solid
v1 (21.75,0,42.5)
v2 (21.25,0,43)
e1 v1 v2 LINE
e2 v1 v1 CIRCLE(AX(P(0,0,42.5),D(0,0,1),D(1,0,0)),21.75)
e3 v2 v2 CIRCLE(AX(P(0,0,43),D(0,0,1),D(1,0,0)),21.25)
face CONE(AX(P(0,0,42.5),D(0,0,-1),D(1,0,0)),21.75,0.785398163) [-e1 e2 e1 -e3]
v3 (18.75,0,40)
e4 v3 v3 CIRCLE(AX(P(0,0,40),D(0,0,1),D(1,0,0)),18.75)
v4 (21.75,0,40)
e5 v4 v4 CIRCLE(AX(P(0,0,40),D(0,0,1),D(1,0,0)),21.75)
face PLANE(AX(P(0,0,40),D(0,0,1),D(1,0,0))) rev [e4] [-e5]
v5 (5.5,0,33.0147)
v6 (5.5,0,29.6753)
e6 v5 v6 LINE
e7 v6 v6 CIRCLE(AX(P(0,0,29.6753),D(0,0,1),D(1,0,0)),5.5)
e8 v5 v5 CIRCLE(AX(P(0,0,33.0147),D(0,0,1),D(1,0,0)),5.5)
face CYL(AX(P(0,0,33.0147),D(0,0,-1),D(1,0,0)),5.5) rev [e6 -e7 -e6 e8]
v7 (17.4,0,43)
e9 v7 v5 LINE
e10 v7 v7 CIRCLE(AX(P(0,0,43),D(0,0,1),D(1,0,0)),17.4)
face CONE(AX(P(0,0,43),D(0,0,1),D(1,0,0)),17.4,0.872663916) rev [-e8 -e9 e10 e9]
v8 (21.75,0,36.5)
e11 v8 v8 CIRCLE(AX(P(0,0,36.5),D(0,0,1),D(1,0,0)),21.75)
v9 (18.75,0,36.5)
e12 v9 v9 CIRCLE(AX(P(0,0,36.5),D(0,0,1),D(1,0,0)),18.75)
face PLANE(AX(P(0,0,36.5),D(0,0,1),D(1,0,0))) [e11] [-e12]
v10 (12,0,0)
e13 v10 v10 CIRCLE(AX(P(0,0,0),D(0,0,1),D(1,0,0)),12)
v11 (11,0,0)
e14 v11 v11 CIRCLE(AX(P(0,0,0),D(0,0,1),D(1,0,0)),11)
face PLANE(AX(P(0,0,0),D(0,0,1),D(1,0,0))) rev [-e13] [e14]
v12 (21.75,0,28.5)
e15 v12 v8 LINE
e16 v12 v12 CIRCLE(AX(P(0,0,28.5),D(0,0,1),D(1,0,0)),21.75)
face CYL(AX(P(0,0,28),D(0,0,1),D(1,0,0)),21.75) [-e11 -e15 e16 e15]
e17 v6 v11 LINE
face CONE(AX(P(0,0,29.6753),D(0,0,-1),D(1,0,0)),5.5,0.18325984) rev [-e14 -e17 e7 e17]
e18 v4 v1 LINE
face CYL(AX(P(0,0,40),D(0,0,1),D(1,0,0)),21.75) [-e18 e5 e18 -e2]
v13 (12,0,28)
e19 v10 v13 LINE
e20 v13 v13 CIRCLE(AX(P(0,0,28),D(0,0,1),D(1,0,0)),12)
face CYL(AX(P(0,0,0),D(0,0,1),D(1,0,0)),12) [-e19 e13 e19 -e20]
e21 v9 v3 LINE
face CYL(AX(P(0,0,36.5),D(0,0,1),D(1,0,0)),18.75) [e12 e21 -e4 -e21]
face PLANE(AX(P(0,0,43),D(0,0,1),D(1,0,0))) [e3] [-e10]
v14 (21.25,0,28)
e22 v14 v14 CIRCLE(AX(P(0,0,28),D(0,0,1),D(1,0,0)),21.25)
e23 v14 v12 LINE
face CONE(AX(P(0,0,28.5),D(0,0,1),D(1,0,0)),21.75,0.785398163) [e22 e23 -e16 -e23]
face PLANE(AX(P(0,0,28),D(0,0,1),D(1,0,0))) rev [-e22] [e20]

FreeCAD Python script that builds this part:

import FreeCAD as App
import Part
import Sketcher

V = App.Vector
Q = App.Units.Quantity


def edges_at(feature, points):
    """Names of the edges that pass closest to the given points."""
    edges = feature.Shape.Edges
    near = lambda p: min(range(len(edges)), key=lambda i: edges[i].distToShape(Part.Vertex(*p))[0])
    return sorted({f"Edge{near(p) + 1}" for p in points})

doc = App.newDocument("Part")
body = doc.addObject("PartDesign::Body", "Body")

# Sketch on XZ plane
sketch1 = body.newObject("Sketcher::SketchObject", "Sketch")
sketch1.AttachmentSupport = (doc.getObject("XZ_Plane"), [""])
sketch1.MapMode = "FlatFace"
sketch1.addGeometry([
    Part.LineSegment(V(12, 0, 0), V(11, 0, 0)),  # 0
    Part.LineSegment(V(11, 0, 0), V(5.5, 29.7, 0)),  # 1
    Part.LineSegment(V(5.5, 29.7, 0), V(5.5, 33, 0)),  # 2
    Part.LineSegment(V(5.5, 33, 0), V(17.4, 43, 0)),  # 3
    Part.LineSegment(V(17.4, 43, 0), V(21.8, 43, 0)),  # 4
    Part.LineSegment(V(21.8, 43, 0), V(21.8, 40, 0)),  # 5
    Part.LineSegment(V(21.8, 40, 0), V(18.8, 40, 0)),  # 6
    Part.LineSegment(V(18.8, 40, 0), V(18.8, 36.5, 0)),  # 7
    Part.LineSegment(V(18.8, 36.5, 0), V(21.8, 36.5, 0)),  # 8
    Part.LineSegment(V(21.8, 36.5, 0), V(21.8, 28, 0)),  # 9
    Part.LineSegment(V(21.8, 28, 0), V(12, 28, 0)),  # 10
    Part.LineSegment(V(12, 28, 0), V(12, 0, 0)),  # 11
], False)
sketch1.addConstraint([
    Sketcher.Constraint("Coincident", 0, 2, 1, 1),
    Sketcher.Constraint("Coincident", 1, 2, 2, 1),
    Sketcher.Constraint("Coincident", 2, 2, 3, 1),
    Sketcher.Constraint("Coincident", 3, 2, 4, 1),
    Sketcher.Constraint("Coincident", 4, 2, 5, 1),
    Sketcher.Constraint("Coincident", 5, 2, 6, 1),
    Sketcher.Constraint("Coincident", 6, 2, 7, 1),
    Sketcher.Constraint("Coincident", 7, 2, 8, 1),
    Sketcher.Constraint("Coincident", 8, 2, 9, 1),
    Sketcher.Constraint("Coincident", 9, 2, 10, 1),
    Sketcher.Constraint("Coincident", 10, 2, 11, 1),
    Sketcher.Constraint("Coincident", 11, 2, 0, 1),
    Sketcher.Constraint("Horizontal", 0),
    Sketcher.Constraint("Vertical", 2),
    Sketcher.Constraint("Horizontal", 4),
    Sketcher.Constraint("Vertical", 5),
    Sketcher.Constraint("Horizontal", 6),
    Sketcher.Constraint("Vertical", 7),
    Sketcher.Constraint("Horizontal", 8),
    Sketcher.Constraint("Vertical", 9),
    Sketcher.Constraint("Horizontal", 10),
    Sketcher.Constraint("Vertical", 11),
    Sketcher.Constraint("PointOnObject", 0, 2, -1),
    Sketcher.Constraint("Vertical", 5, 2, 8, 2),
    Sketcher.Constraint("Equal", 8, 5),
    Sketcher.Constraint("DistanceY", 11, 2, 11, 1, 28.0),
    Sketcher.Constraint("DistanceY", 7, 2, 7, 1, 3.5),
    Sketcher.Constraint("DistanceX", -1, 1, 0, 2, 11.0),
    Sketcher.Constraint("DistanceY", -1, 1, 3, 2, 43.0),
    Sketcher.Constraint("DistanceY", -1, 1, 7, 2, 36.5),
    Sketcher.Constraint("DistanceX", 0, 2, 0, 1, 1.0),
    Sketcher.Constraint("Angle", 3, Q("40 deg")),
    Sketcher.Constraint("Angle", 1, Q("100.5 deg")),
    Sketcher.Constraint("DistanceX", 4, 1, 4, 2, 4.35),
    Sketcher.Constraint("DistanceX", 10, 2, 10, 1, 9.75),
    Sketcher.Constraint("DistanceY", -1, 1, 1, 2, 29.6753),
])
revolution = body.newObject("PartDesign::Revolution", "Revolution")
revolution.Profile = sketch1
revolution.ReferenceAxis = (sketch1, ["V_Axis"])
revolution.Angle = 360
doc.recompute()

chamfer = body.newObject("PartDesign::Chamfer", "Chamfer")
chamfer.Base = (revolution, edges_at(revolution, [(-21.75, 0, 43), (-21.75, 0, 28)]))
chamfer.Size = 0.5

doc.recompute()
